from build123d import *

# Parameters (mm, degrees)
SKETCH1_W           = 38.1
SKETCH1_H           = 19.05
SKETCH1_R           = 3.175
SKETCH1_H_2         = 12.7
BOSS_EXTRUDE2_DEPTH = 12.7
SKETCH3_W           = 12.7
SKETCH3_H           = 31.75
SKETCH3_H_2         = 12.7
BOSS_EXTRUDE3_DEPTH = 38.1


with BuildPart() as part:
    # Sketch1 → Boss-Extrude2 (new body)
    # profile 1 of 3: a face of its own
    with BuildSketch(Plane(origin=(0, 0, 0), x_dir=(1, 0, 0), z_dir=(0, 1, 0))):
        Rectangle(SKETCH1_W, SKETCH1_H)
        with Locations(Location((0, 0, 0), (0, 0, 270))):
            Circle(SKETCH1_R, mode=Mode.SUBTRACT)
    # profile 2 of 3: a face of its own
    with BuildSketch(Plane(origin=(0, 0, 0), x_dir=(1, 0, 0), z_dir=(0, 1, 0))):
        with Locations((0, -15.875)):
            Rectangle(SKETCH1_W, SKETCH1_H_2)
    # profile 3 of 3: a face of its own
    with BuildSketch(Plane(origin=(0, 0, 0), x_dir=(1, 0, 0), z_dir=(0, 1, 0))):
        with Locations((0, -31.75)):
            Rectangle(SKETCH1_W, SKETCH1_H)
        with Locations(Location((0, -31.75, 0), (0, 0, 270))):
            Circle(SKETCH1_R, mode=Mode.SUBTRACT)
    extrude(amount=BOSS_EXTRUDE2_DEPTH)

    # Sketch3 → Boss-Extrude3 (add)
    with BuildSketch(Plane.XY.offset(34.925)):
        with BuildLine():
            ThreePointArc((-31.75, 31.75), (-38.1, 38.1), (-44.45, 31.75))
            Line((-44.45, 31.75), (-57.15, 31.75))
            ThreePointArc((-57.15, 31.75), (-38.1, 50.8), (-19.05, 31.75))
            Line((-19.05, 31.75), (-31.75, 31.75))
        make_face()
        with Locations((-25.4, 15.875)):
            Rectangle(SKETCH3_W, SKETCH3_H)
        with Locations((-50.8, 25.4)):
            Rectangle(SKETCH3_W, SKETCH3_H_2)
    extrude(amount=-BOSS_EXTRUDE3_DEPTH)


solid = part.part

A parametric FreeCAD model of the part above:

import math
import FreeCAD as App
import Part
import Sketcher
from FreeCAD import Vector
Q = App.Units.Quantity

doc = App.newDocument("Part")
body = doc.addObject("PartDesign::Body", "Body")

# Sketch on XZ plane
sketch1 = body.newObject("Sketcher::SketchObject", "Sketch")
sketch1.AttachmentSupport = (doc.getObject("XZ_Plane"), [""])
sketch1.MapMode = "FlatFace"
sketch1.addGeometry([
    Part.LineSegment(Vector(-19.05, -9.525, 0), Vector(-19.05, 41.275, 0)),  # 0
    Part.LineSegment(Vector(-19.05, 41.275, 0), Vector(19.05, 41.275, 0)),  # 1
    Part.LineSegment(Vector(19.05, 41.275, 0), Vector(19.05, -9.525, 0)),  # 2
    Part.LineSegment(Vector(19.05, -9.525, 0), Vector(-19.05, -9.525, 0)),  # 3
    Part.Circle(Vector(0, 0, 0), Vector(0, 0, 1), 3.175),  # 4
    Part.Circle(Vector(0, 31.75, 0), Vector(0, 0, 1), 3.175),  # 5
], False)
sketch1.addConstraint([
    Sketcher.Constraint("Coincident", 0, 2, 1, 1),
    Sketcher.Constraint("Coincident", 1, 2, 2, 1),
    Sketcher.Constraint("Coincident", 2, 2, 3, 1),
    Sketcher.Constraint("Coincident", 3, 2, 0, 1),
    Sketcher.Constraint("Vertical", 0),
    Sketcher.Constraint("Horizontal", 1),
    Sketcher.Constraint("Vertical", 2),
    Sketcher.Constraint("Horizontal", 3),
    Sketcher.Constraint("Coincident", 4, 3, -1, 1),
    Sketcher.Constraint("Equal", 4, 5),
    Sketcher.Constraint("PointOnObject", 5, 3, -2),
    Sketcher.Constraint("Diameter", 4, Q("0.25 in")),
    Sketcher.Constraint("DistanceY", 0, 1, 0, 2, Q("2 in")),
    Sketcher.Constraint("DistanceX", 1, 1, 1, 2, Q("1.5 in")),
    Sketcher.Constraint("DistanceY", -1, 1, 5, 3, Q("1.25 in")),
    Sketcher.Constraint("DistanceX", 0, 2, -1, 1, Q("0.75 in")),
    Sketcher.Constraint("DistanceY", -1, 1, 0, 2, Q("1.625 in")),
])
pad1 = body.newObject("PartDesign::Pad", "Pad")
pad1.Profile = sketch1
pad1.Length = Q("0.5 in")
pad1.Reversed = True

# Sketch on XY plane
sketch2 = body.newObject("Sketcher::SketchObject", "Sketch001")
sketch2.AttachmentSupport = (doc.getObject("XY_Plane"), [""])
sketch2.MapMode = "FlatFace"
sketch2.AttachmentOffset = App.Placement(Vector(0, 0, 1.375 * 25.4), App.Rotation())
sketch2.addGeometry([
    Part.ArcOfCircle(Part.Circle(Vector(-38.1, 31.75, 0), Vector(0, 0, 1), 6.35), math.radians(0), math.radians(180)),  # 0
    Part.LineSegment(Vector(-31.75, 31.75, 0), Vector(-31.75, 0, 0)),  # 1
    Part.LineSegment(Vector(-31.75, 0, 0), Vector(-19.05, 0, 0)),  # 2
    Part.LineSegment(Vector(-19.05, 0, 0), Vector(-19.05, 31.75, 0)),  # 3
    Part.ArcOfCircle(Part.Circle(Vector(-38.1, 31.75, 0), Vector(0, 0, 1), 19.05), math.radians(0), math.radians(180)),  # 4
    Part.LineSegment(Vector(-57.15, 31.75, 0), Vector(-57.15, 19.05, 0)),  # 5
    Part.LineSegment(Vector(-57.15, 19.05, 0), Vector(-44.45, 19.05, 0)),  # 6
    Part.LineSegment(Vector(-44.45, 19.05, 0), Vector(-44.45, 31.75, 0)),  # 7
], False)
sketch2.addConstraint([
    Sketcher.Constraint("Tangent", 0, 1, 1, 1),
    Sketcher.Constraint("Coincident", 1, 2, 2, 1),
    Sketcher.Constraint("Coincident", 2, 2, 3, 1),
    Sketcher.Constraint("Tangent", 3, 2, 4, 1),
    Sketcher.Constraint("Tangent", 4, 2, 5, 1),
    Sketcher.Constraint("Coincident", 5, 2, 6, 1),
    Sketcher.Constraint("Coincident", 6, 2, 7, 1),
    Sketcher.Constraint("Tangent", 7, 2, 0, 2),
    Sketcher.Constraint("Vertical", 1),
    Sketcher.Constraint("Horizontal", 2),
    Sketcher.Constraint("Vertical", 3),
    Sketcher.Constraint("Vertical", 5),
    Sketcher.Constraint("Horizontal", 6),
    Sketcher.Constraint("Vertical", 7),
    Sketcher.Constraint("Coincident", 4, 3, 0, 3),
    Sketcher.Constraint("PointOnObject", 1, 2, -1),
    Sketcher.Constraint("Equal", 6, 5),
    Sketcher.Constraint("Radius", 0, Q("0.25 in")),
    Sketcher.Constraint("Radius", 4, Q("0.75 in")),
    Sketcher.Constraint("DistanceY", 1, 2, 1, 1, Q("1.25 in")),
    Sketcher.Constraint("DistanceX", 0, 3, -1, 1, Q("1.5 in")),
])
pad2 = body.newObject("PartDesign::Pad", "Pad001")
pad2.Profile = sketch2
pad2.Length = Q("1.5 in")
pad2.Reversed = True

doc.recompute()
